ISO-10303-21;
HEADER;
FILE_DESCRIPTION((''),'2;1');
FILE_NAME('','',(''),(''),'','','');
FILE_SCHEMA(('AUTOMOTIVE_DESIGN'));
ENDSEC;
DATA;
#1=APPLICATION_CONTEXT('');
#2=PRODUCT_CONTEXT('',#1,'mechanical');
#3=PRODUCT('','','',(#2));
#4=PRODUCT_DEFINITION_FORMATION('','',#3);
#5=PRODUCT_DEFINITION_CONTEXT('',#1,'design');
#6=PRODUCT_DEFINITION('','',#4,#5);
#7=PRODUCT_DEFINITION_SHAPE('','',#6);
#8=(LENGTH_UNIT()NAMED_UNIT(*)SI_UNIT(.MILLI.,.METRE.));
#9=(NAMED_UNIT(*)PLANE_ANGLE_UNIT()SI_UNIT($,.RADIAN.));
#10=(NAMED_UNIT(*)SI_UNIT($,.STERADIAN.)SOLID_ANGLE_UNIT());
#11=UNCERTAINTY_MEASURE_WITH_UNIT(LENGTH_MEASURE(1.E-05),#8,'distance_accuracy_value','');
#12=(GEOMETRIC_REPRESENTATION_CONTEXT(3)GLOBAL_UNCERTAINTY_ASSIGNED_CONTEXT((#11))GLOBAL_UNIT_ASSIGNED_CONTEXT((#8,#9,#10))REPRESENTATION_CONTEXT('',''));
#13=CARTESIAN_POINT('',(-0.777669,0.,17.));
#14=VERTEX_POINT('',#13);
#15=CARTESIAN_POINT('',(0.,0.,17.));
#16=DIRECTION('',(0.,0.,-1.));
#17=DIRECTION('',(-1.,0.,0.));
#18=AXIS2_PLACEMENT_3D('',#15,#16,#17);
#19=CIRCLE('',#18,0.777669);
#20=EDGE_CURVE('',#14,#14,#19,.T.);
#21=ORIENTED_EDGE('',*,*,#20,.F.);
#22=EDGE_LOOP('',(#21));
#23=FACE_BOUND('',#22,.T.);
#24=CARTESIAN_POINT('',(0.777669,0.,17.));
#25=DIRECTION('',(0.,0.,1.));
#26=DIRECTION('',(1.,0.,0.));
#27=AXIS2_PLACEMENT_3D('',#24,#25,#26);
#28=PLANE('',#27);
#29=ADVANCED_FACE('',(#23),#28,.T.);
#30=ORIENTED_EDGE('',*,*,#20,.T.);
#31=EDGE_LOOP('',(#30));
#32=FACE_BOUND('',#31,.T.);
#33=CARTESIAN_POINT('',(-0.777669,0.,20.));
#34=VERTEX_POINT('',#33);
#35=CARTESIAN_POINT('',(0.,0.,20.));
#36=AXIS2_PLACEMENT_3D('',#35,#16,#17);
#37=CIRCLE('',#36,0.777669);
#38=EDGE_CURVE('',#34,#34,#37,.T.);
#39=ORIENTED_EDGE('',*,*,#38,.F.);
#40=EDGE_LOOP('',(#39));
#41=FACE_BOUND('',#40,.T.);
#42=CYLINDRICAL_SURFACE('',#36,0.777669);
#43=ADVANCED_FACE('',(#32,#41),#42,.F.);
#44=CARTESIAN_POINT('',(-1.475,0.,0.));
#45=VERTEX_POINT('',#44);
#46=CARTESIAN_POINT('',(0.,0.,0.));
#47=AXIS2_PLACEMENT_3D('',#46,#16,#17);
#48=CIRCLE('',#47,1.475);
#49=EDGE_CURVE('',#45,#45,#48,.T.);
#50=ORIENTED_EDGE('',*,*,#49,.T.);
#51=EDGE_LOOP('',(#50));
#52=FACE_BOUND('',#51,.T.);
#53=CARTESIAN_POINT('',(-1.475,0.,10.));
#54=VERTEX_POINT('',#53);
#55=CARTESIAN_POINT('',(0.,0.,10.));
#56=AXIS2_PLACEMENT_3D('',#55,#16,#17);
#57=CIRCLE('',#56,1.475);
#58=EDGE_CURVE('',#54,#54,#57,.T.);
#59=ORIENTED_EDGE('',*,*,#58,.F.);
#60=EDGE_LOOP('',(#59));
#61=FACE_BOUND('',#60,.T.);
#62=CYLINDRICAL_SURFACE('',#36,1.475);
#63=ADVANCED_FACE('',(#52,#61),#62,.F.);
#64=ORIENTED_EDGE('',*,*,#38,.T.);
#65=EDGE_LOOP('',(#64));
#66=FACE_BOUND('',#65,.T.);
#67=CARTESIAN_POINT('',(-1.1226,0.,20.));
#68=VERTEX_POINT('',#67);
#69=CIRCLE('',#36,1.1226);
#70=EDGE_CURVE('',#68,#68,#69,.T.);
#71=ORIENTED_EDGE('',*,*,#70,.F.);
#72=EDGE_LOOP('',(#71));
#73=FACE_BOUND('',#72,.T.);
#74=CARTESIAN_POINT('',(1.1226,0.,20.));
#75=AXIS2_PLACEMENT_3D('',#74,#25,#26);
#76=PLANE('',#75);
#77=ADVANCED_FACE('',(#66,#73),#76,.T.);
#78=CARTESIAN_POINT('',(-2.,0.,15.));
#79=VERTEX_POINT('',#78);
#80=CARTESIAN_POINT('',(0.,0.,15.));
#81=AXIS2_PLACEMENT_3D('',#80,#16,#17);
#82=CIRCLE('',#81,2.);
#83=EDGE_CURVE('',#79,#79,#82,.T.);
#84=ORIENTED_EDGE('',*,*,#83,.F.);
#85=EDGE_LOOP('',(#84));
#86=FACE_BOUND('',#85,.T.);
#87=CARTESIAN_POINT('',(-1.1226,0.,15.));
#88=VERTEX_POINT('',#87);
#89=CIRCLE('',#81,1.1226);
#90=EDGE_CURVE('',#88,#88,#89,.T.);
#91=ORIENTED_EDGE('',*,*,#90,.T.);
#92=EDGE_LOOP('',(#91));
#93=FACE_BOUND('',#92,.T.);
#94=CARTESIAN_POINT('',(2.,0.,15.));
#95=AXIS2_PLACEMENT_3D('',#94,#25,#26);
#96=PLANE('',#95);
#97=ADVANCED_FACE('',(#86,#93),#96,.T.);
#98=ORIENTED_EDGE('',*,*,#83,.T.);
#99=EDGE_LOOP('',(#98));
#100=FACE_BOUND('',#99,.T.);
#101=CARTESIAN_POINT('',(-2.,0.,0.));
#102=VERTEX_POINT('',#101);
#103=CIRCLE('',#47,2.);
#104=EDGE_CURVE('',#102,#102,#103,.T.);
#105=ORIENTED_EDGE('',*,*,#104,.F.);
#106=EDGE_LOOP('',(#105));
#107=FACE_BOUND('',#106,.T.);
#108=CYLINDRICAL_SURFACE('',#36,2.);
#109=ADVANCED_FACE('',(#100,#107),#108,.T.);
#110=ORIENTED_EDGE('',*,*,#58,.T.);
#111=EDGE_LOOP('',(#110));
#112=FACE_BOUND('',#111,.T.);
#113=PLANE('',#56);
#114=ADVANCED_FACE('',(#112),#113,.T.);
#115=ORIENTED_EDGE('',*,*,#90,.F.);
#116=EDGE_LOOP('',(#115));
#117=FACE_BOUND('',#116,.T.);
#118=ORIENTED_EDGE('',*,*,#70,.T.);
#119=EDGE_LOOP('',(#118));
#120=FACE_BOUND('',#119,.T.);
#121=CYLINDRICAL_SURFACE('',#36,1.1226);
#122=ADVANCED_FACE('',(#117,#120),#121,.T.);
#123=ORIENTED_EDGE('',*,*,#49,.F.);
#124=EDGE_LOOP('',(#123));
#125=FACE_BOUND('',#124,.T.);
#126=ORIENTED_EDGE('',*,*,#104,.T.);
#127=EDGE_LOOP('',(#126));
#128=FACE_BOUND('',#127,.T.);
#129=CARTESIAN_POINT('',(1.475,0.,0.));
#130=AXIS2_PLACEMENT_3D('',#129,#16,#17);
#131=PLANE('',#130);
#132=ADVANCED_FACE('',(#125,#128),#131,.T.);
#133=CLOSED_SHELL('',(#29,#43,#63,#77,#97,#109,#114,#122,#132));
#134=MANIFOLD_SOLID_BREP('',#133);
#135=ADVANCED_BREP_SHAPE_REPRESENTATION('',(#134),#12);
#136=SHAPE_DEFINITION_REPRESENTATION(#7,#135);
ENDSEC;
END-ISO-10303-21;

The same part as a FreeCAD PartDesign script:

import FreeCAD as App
import Part
import Sketcher
from FreeCAD import Vector
Q = App.Units.Quantity


def add_polygon(sketch, points):
    """Adds a closed chain of lines whose ends are joined by coincident constraints."""
    first, n = sketch.GeometryCount, len(points)
    for a, b in zip(points, points[1:] + points[:1]):
        sketch.addGeometry(Part.LineSegment(App.Vector(*a, 0), App.Vector(*b, 0)), False)
    for i in range(n):
        sketch.addConstraint(Sketcher.Constraint("Coincident", first + i, 2, first + (i + 1) % n, 1))

doc = App.newDocument("Part")
params = doc.addObject("Spreadsheet::Sheet", "Params")
for row, (alias, value) in enumerate([
    ("sketch1_height", "7 mm"),
    ("sketch1_height2", "10 mm"),
    ("sketch1_height3", "15 mm"),
    ("sketch1_height4", "5 mm"),
    ("revolution_angle", "360 deg"),
], start=1):
    params.set(f"A{row}", alias)
    params.set(f"B{row}", "=" + value)
    params.setAlias(f"B{row}", alias)

body = doc.addObject("PartDesign::Body", "Body")

# Sketch on XZ plane
sketch1 = body.newObject("Sketcher::SketchObject", "Sketch")
sketch1.AttachmentSupport = (doc.getObject("XZ_Plane"), [""])
sketch1.MapMode = "FlatFace"
add_polygon(sketch1, [(0.78, 17), (0, 17), (0, 10), (1.48, 10), (1.48, 0), (2, 0), (2, 15), (1.12, 15), (1.12, 20), (0.78, 20)])  # lines 0-9
sketch1.addConstraint(Sketcher.Constraint("Horizontal", 0))
sketch1.addConstraint(Sketcher.Constraint("Vertical", 1))
sketch1.addConstraint(Sketcher.Constraint("Horizontal", 2))
sketch1.addConstraint(Sketcher.Constraint("Vertical", 3))
sketch1.addConstraint(Sketcher.Constraint("Horizontal", 4))
sketch1.addConstraint(Sketcher.Constraint("Vertical", 5))
sketch1.addConstraint(Sketcher.Constraint("Horizontal", 6))
sketch1.addConstraint(Sketcher.Constraint("Vertical", 7))
sketch1.addConstraint(Sketcher.Constraint("Horizontal", 8))
sketch1.addConstraint(Sketcher.Constraint("Vertical", 9))
sketch1.addConstraint(Sketcher.Constraint("PointOnObject", 0, 2, -2))
sketch1.addConstraint(Sketcher.Constraint("PointOnObject", 3, 2, -1))
sketch1.addConstraint(Sketcher.Constraint("DistanceY", 1, 2, 1, 1, Q("7 mm")))
sketch1.addConstraint(Sketcher.Constraint("DistanceY", 3, 2, 3, 1, Q("10 mm")))
sketch1.addConstraint(Sketcher.Constraint("DistanceY", 5, 1, 5, 2, Q("15 mm")))
sketch1.addConstraint(Sketcher.Constraint("DistanceY", 7, 1, 7, 2, Q("5 mm")))
sketch1.addConstraint(Sketcher.Constraint("DistanceX", -1, 1, 4, 2, Q("2 mm")))
sketch1.addConstraint(Sketcher.Constraint("DistanceX", 2, 1, 2, 2, Q("1.475 mm")))
sketch1.addConstraint(Sketcher.Constraint("DistanceX", 6, 2, 6, 1, Q("0.8774 mm")))
sketch1.addConstraint(Sketcher.Constraint("DistanceX", 0, 2, 0, 1, Q("0.777669 mm")))
sketch1.setExpression("Constraints[22]", "Params.sketch1_height")
sketch1.setExpression("Constraints[23]", "Params.sketch1_height2")
sketch1.setExpression("Constraints[24]", "Params.sketch1_height3")
sketch1.setExpression("Constraints[25]", "Params.sketch1_height4")
revolution = body.newObject("PartDesign::Revolution", "Revolution")
revolution.Profile = sketch1
revolution.ReferenceAxis = (sketch1, ["V_Axis"])
revolution.setExpression("Angle", "Params.revolution_angle")

doc.recompute()
